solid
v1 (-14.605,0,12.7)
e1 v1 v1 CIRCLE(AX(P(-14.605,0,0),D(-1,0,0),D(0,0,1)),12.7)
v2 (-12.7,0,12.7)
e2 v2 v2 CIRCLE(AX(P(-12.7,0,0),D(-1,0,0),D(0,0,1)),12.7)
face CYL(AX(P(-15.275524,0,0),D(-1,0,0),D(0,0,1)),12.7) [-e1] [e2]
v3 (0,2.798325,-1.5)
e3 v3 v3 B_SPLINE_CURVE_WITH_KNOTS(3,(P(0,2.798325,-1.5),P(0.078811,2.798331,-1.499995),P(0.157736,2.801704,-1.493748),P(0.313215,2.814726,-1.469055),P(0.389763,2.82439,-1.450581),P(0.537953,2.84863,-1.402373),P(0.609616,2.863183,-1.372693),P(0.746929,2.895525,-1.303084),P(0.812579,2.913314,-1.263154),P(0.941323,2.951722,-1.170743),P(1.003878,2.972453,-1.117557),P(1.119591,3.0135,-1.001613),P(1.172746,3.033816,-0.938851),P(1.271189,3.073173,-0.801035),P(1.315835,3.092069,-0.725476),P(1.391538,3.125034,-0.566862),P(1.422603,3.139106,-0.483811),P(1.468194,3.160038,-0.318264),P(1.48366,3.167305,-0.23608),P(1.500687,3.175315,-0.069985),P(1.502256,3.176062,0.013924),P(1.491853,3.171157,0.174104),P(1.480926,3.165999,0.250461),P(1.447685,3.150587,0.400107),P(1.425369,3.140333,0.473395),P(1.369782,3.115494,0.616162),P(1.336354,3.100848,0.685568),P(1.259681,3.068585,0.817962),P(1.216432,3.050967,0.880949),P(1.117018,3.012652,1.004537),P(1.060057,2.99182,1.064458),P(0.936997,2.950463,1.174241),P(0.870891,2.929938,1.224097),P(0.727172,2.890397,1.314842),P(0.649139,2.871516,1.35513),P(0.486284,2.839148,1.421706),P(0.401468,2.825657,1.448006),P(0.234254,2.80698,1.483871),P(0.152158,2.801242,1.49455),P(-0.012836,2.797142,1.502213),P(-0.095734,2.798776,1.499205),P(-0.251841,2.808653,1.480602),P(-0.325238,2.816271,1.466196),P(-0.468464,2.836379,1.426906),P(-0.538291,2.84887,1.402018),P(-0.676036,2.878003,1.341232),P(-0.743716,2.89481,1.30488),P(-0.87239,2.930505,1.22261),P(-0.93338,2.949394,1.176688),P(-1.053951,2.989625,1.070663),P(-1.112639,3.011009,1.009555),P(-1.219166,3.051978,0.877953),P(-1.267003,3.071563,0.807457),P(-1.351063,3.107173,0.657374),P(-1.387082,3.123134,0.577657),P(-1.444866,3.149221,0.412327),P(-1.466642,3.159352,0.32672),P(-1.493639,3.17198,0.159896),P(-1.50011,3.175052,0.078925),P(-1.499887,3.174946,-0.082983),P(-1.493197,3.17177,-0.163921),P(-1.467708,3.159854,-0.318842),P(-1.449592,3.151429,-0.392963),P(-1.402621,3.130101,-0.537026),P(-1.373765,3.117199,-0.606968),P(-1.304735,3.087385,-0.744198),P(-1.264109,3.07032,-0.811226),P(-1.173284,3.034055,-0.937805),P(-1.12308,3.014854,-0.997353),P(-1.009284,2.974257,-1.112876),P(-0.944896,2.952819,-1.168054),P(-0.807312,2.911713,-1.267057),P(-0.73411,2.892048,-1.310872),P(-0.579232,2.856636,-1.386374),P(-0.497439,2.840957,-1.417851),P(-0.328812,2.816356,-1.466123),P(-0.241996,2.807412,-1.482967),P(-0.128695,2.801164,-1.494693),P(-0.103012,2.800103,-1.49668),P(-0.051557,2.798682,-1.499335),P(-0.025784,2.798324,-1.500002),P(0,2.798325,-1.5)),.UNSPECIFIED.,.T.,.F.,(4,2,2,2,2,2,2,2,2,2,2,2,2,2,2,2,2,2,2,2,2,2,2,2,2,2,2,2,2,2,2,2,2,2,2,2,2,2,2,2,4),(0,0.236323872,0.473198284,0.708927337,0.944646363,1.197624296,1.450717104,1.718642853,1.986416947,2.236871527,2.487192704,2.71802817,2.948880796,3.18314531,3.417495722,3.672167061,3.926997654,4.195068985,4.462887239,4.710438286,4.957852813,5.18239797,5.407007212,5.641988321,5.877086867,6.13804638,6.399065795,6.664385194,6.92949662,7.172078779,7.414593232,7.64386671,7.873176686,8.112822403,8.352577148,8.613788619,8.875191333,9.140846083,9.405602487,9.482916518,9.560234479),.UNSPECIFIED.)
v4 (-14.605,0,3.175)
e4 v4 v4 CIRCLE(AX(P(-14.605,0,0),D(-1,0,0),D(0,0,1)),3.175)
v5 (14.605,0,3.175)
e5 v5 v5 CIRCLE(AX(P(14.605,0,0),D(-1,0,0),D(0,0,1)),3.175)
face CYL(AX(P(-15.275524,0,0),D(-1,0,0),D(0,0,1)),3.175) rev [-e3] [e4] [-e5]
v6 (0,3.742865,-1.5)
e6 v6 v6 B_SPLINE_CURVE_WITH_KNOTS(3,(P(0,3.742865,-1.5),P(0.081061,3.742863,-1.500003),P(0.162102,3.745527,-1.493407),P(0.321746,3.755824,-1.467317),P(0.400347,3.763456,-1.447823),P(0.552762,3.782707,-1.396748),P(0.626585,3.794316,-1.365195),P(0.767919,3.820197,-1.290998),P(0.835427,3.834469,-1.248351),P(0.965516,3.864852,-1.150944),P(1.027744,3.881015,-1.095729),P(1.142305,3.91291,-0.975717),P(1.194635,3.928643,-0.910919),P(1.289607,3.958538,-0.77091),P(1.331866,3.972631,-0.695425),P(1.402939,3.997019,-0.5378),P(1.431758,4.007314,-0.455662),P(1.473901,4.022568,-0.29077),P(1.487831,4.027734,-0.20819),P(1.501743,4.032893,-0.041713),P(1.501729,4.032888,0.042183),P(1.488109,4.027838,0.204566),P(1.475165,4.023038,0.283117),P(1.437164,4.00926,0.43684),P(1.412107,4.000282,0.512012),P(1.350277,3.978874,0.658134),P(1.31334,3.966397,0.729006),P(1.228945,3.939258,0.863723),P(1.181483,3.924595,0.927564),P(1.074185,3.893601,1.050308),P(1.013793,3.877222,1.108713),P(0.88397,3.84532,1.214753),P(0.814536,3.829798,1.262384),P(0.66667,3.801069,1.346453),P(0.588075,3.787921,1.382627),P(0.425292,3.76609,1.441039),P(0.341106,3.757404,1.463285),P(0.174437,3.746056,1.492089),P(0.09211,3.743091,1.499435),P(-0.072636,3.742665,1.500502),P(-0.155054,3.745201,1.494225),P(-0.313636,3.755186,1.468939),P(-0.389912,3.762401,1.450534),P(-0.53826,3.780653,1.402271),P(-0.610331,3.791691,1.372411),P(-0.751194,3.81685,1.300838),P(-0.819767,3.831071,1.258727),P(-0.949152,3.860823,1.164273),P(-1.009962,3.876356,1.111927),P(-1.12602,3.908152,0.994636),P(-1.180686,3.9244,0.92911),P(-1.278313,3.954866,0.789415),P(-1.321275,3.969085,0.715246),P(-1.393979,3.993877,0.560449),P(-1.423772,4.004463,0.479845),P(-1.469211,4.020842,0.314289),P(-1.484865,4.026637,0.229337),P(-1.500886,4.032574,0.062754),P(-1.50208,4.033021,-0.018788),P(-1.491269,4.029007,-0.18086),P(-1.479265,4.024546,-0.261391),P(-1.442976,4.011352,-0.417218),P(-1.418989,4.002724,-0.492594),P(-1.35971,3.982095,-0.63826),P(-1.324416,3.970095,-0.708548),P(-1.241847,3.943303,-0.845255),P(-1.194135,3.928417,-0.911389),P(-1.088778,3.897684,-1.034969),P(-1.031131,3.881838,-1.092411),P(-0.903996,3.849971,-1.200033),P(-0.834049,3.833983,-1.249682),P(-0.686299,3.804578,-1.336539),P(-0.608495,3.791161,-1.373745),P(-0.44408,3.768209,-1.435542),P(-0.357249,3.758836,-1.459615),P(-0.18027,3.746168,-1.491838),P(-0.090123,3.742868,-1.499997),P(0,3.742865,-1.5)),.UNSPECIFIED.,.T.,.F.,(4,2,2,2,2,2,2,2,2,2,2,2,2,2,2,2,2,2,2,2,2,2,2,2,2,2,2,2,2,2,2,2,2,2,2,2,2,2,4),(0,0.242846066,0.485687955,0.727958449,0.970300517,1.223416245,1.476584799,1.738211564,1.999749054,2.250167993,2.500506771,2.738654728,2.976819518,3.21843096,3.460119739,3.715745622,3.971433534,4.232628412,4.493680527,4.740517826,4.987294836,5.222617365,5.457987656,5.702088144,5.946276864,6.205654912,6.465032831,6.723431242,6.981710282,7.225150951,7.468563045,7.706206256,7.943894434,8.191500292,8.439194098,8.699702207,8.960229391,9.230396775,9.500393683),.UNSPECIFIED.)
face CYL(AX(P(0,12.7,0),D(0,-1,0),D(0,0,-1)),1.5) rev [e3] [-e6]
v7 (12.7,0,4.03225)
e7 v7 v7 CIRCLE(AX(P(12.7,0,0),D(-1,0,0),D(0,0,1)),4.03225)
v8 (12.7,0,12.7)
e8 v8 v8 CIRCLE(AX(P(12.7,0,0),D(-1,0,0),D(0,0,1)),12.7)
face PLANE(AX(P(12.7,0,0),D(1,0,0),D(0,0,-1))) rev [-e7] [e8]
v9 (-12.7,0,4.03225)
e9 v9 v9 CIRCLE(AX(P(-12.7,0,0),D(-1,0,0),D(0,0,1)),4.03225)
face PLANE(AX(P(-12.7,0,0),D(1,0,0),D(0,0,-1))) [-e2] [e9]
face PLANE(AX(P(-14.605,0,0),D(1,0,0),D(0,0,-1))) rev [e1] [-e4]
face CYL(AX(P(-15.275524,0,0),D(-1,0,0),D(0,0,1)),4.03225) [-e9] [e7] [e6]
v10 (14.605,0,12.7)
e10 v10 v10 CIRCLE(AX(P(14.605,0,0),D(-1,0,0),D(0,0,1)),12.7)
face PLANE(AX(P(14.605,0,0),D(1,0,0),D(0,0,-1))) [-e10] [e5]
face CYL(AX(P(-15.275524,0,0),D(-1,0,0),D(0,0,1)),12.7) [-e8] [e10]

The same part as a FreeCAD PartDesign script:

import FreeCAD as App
import Part
import Sketcher

V = App.Vector
Q = App.Units.Quantity

doc = App.newDocument("Part")
body = doc.addObject("PartDesign::Body", "Body")

# Sketch on XY plane
sketch1 = doc.addObject("Sketcher::SketchObject", "Sketch")
body.addObject(sketch1)
sketch1.AttachmentSupport = (doc.XY_Plane, [""])
sketch1.MapMode = "FlatFace"
sketch1.addGeometry([
    Part.LineSegment(V(14.6, 3.2, 0), V(14.6, 12.7, 0)),  # 0
    Part.LineSegment(V(14.6, 12.7, 0), V(12.7, 12.7, 0)),  # 1
    Part.LineSegment(V(12.7, 12.7, 0), V(12.7, 4, 0)),  # 2
    Part.LineSegment(V(12.7, 4, 0), V(-12.7, 4, 0)),  # 3
    Part.LineSegment(V(-12.7, 4, 0), V(-12.7, 12.7, 0)),  # 4
    Part.LineSegment(V(-12.7, 12.7, 0), V(-14.6, 12.7, 0)),  # 5
    Part.LineSegment(V(-14.6, 12.7, 0), V(-14.6, 3.2, 0)),  # 6
    Part.LineSegment(V(-14.6, 3.2, 0), V(14.6, 3.2, 0)),  # 7
], False)
sketch1.addConstraint([
    Sketcher.Constraint("Coincident", 0, 2, 1, 1),
    Sketcher.Constraint("Coincident", 1, 2, 2, 1),
    Sketcher.Constraint("Coincident", 2, 2, 3, 1),
    Sketcher.Constraint("Coincident", 3, 2, 4, 1),
    Sketcher.Constraint("Coincident", 4, 2, 5, 1),
    Sketcher.Constraint("Coincident", 5, 2, 6, 1),
    Sketcher.Constraint("Coincident", 6, 2, 7, 1),
    Sketcher.Constraint("Coincident", 7, 2, 0, 1),
    Sketcher.Constraint("Vertical", 0),
    Sketcher.Constraint("Horizontal", 1),
    Sketcher.Constraint("Vertical", 2),
    Sketcher.Constraint("Horizontal", 3),
    Sketcher.Constraint("Vertical", 4),
    Sketcher.Constraint("Horizontal", 5),
    Sketcher.Constraint("Vertical", 6),
    Sketcher.Constraint("Horizontal", 7),
    Sketcher.Constraint("Symmetric", 1, 2, 4, 2, -2),
    Sketcher.Constraint("Equal", 1, 5),
    Sketcher.Constraint("DistanceX", 3, 2, 3, 1, Q("1 in")),
    Sketcher.Constraint("DistanceX", 7, 1, 7, 2, Q("1.15 in")),
    Sketcher.Constraint("DistanceY", -1, 1, 0, 2, Q("0.5 in")),
    Sketcher.Constraint("DistanceY", 0, 1, 0, 2, Q("0.375 in")),
    Sketcher.Constraint("DistanceY", 2, 2, 2, 1, Q("8.66775 mm")),
])
revolution = doc.addObject("PartDesign::Revolution", "Revolution")
body.addObject(revolution)
revolution.Profile = sketch1
revolution.ReferenceAxis = (sketch1, ["H_Axis"])
revolution.Angle = 360

# Sketch on XZ plane
sketch2 = doc.addObject("Sketcher::SketchObject", "Sketch001")
body.addObject(sketch2)
sketch2.AttachmentSupport = (doc.XZ_Plane, [""])
sketch2.MapMode = "FlatFace"
sketch2.addGeometry(Part.Circle(V(0, 0, 0), V(0, 0, 1), 1.5), False)
sketch2.addConstraint([
    Sketcher.Constraint("Coincident", 0, 3, -1, 1),
    Sketcher.Constraint("Diameter", 0, Q("3 mm")),
])
pocket1 = doc.addObject("PartDesign::Pocket", "Pocket")
body.addObject(pocket1)
pocket1.Profile = sketch2
pocket1.Type = "ThroughAll"

doc.recompute()
